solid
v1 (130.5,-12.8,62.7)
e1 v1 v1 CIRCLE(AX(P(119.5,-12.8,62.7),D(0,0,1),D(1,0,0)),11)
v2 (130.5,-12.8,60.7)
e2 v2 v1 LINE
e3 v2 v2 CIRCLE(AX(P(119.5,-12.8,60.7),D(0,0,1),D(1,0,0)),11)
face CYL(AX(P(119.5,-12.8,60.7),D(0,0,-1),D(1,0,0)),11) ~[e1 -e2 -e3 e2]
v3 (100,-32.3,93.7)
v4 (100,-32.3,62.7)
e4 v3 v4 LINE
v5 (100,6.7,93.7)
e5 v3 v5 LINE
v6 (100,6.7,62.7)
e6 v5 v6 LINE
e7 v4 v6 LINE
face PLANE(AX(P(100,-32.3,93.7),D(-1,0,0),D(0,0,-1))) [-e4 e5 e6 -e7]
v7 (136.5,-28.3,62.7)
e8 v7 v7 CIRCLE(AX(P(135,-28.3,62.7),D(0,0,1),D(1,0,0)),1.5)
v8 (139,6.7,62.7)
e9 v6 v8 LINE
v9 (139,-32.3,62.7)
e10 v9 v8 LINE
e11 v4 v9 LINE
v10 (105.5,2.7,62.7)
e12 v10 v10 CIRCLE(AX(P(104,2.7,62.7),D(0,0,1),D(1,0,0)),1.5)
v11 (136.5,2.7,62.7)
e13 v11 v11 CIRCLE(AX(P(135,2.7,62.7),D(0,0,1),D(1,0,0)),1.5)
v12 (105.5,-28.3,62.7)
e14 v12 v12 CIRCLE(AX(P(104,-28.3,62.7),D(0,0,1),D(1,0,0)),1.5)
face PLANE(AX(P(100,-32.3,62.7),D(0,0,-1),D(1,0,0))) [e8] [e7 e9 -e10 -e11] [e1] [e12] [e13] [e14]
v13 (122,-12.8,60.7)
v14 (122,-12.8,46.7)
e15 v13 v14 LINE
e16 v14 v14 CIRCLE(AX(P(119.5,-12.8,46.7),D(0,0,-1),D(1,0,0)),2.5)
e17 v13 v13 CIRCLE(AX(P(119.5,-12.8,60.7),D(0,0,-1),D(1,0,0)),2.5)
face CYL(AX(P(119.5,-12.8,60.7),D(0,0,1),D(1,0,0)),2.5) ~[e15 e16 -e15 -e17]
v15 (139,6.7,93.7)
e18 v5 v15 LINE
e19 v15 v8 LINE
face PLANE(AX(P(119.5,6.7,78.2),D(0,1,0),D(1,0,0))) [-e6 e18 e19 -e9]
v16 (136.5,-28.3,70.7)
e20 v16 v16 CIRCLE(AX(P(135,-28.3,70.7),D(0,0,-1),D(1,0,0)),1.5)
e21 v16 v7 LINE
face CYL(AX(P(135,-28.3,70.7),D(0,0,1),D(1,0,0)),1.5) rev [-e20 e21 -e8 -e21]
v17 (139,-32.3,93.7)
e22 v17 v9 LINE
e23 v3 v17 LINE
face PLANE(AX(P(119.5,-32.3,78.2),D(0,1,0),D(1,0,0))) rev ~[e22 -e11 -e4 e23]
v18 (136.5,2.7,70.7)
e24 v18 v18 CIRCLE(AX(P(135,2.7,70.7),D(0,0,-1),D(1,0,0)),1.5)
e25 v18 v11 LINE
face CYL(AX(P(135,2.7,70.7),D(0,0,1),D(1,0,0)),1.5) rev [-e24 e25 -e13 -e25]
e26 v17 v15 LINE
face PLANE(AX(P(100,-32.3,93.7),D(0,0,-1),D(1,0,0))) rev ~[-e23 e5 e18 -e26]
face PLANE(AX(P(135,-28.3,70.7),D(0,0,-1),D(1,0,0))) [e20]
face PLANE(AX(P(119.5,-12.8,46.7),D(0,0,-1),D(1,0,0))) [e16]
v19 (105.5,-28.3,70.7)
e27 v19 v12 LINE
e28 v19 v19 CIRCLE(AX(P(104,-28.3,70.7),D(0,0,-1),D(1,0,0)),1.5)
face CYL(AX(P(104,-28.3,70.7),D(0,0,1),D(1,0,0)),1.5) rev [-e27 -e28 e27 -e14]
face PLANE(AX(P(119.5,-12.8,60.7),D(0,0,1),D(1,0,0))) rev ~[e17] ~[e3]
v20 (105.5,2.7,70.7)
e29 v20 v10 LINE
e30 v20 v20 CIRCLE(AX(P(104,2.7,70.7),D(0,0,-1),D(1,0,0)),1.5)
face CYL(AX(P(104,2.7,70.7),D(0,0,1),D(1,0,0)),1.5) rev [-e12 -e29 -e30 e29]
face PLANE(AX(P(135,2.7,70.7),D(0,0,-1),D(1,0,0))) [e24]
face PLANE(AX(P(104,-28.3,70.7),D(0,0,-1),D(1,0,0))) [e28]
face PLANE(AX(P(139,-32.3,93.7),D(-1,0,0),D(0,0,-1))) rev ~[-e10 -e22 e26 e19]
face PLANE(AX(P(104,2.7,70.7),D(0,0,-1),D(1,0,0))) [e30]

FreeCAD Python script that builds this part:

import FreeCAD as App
import Part
import Sketcher
from FreeCAD import Vector

doc = App.newDocument("Part")
body = doc.addObject("PartDesign::Body", "Body")

sketch1 = body.newObject("Sketcher::SketchObject", "Sketch")
sketch1.AttachmentSupport = (doc.getObject("XZ_Plane"), [""])
sketch1.MapMode = "FlatFace"
sketch1.AttachmentOffset = App.Placement(Vector(0, 0, -33), App.Rotation())
sketch1.addGeometry(Part.Circle(Vector(20, 20, 0), Vector(0, 0, 1), 11), False)
sketch1.addConstraint([
    Sketcher.Constraint("Diameter", 0, 22.0),
    Sketcher.Constraint("DistanceX", -1, 1, 0, 3, 19.5),
    Sketcher.Constraint("DistanceY", -1, 1, 0, 3, 19.5),
])
pad1 = body.newObject("PartDesign::Pad", "Pad")
pad1.Profile = sketch1
pad1.Length = 2
body2 = doc.addObject("PartDesign::Body", "Body001")

sketch2 = body2.newObject("Sketcher::SketchObject", "Sketch001")
sketch2.AttachmentSupport = (doc.getObject("XZ_Plane001"), [""])
sketch2.MapMode = "FlatFace"
sketch2.AttachmentOffset = App.Placement(Vector(0, 0, -33), App.Rotation())
sketch2.addGeometry(Part.Circle(Vector(19.5, 19.5, 0), Vector(0, 0, 1), 2.5), False)
sketch2.addConstraint([
    Sketcher.Constraint("Diameter", 0, 5.0),
    Sketcher.Constraint("DistanceX", -1, 1, 0, 3, 19.5),
    Sketcher.Constraint("DistanceY", -1, 1, 0, 3, 19.5),
])
pad2 = body2.newObject("PartDesign::Pad", "Pad001")
pad2.Profile = sketch2
pad2.Length = 14
pad2.Reversed = True
body3 = doc.addObject("PartDesign::Body", "Body002")

sketch3 = body3.newObject("Sketcher::SketchObject", "Sketch002")
sketch3.AttachmentSupport = (doc.getObject("XZ_Plane002"), [""])
sketch3.MapMode = "FlatFace"
sketch3.AttachmentOffset = App.Placement(Vector(0, 0, -23), App.Rotation())
sketch3.addGeometry(Part.Circle(Vector(35, 35, 0), Vector(0, 0, 1), 1.5), False)
sketch3.addConstraint([
    Sketcher.Constraint("Diameter", 0, 3.0),
    Sketcher.Constraint("DistanceX", -1, 1, 0, 3, 35.0),
    Sketcher.Constraint("DistanceY", -1, 1, 0, 3, 35.0),
])
pad3 = body3.newObject("PartDesign::Pad", "Pad002")
pad3.Profile = sketch3
pad3.Length = 10
pad3.Reversed = True
body4 = doc.addObject("PartDesign::Body", "Body003")

sketch4 = body4.newObject("Sketcher::SketchObject", "Sketch003")
sketch4.AttachmentSupport = (doc.getObject("XZ_Plane003"), [""])
sketch4.MapMode = "FlatFace"
sketch4.AttachmentOffset = App.Placement(Vector(0, 0, -23), App.Rotation())
sketch4.addGeometry(Part.Circle(Vector(35, 4, 0), Vector(0, 0, 1), 1.5), False)
sketch4.addConstraint([
    Sketcher.Constraint("Diameter", 0, 3.0),
    Sketcher.Constraint("DistanceX", -1, 1, 0, 3, 35.0),
    Sketcher.Constraint("DistanceY", -1, 1, 0, 3, 4.0),
])
pad4 = body4.newObject("PartDesign::Pad", "Pad003")
pad4.Profile = sketch4
pad4.Length = 10
pad4.Reversed = True
body5 = doc.addObject("PartDesign::Body", "Body004")

sketch5 = body5.newObject("Sketcher::SketchObject", "Sketch004")
sketch5.AttachmentSupport = (doc.getObject("XZ_Plane004"), [""])
sketch5.MapMode = "FlatFace"
sketch5.AttachmentOffset = App.Placement(Vector(0, 0, -23), App.Rotation())
sketch5.addGeometry(Part.Circle(Vector(4, 4, 0), Vector(0, 0, 1), 1.5), False)
sketch5.addConstraint([
    Sketcher.Constraint("Diameter", 0, 3.0),
    Sketcher.Constraint("DistanceX", -1, 1, 0, 3, 4.0),
    Sketcher.Constraint("DistanceY", -1, 1, 0, 3, 4.0),
])
pad5 = body5.newObject("PartDesign::Pad", "Pad004")
pad5.Profile = sketch5
pad5.Length = 10
pad5.Reversed = True
body6 = doc.addObject("PartDesign::Body", "Body005")

sketch6 = body6.newObject("Sketcher::SketchObject", "Sketch005")
sketch6.AttachmentSupport = (doc.getObject("XZ_Plane005"), [""])
sketch6.MapMode = "FlatFace"
sketch6.AttachmentOffset = App.Placement(Vector(0, 0, -23), App.Rotation())
sketch6.addGeometry(Part.Circle(Vector(4, 35, 0), Vector(0, 0, 1), 1.5), False)
sketch6.addConstraint([
    Sketcher.Constraint("Diameter", 0, 3.0),
    Sketcher.Constraint("DistanceX", -1, 1, 0, 3, 4.0),
    Sketcher.Constraint("DistanceY", -1, 1, 0, 3, 35.0),
])
pad6 = body6.newObject("PartDesign::Pad", "Pad005")
pad6.Profile = sketch6
pad6.Length = 10
pad6.Reversed = True
body7 = doc.addObject("PartDesign::Body", "Body006")

sketch7 = body7.newObject("Sketcher::SketchObject", "Sketch006")
sketch7.AttachmentSupport = (doc.getObject("XY_Plane006"), [""])
sketch7.MapMode = "FlatFace"
sketch7.addGeometry([
    Part.LineSegment(Vector(0, 31, 0), Vector(0, 0, 0)),
    Part.LineSegment(Vector(0, 0, 0), Vector(39, 0, 0)),
    Part.LineSegment(Vector(39, 0, 0), Vector(39, 31, 0)),
    Part.LineSegment(Vector(39, 31, 0), Vector(0, 31, 0)),
], False)
sketch7.addConstraint([
    Sketcher.Constraint("Coincident", 0, 2, 1, 1),
    Sketcher.Constraint("Coincident", 1, 2, 2, 1),
    Sketcher.Constraint("Coincident", 2, 2, 3, 1),
    Sketcher.Constraint("Coincident", 3, 2, 0, 1),
    Sketcher.Constraint("Vertical", 0),
    Sketcher.Constraint("Horizontal", 1),
    Sketcher.Constraint("Vertical", 2),
    Sketcher.Constraint("Horizontal", 3),
    Sketcher.Constraint("Coincident", 0, 2, -1, 1),
    Sketcher.Constraint("DistanceX", 1, 1, 1, 2, 39.0),
    Sketcher.Constraint("DistanceY", 0, 2, 0, 1, 31.0),
])
pad7 = body7.newObject("PartDesign::Pad", "Pad006")
pad7.Profile = sketch7
pad7.Length = 39
doc.recompute()

boolean = body7.newObject("PartDesign::Boolean", "Boolean")
boolean.Type = "Cut"
boolean.addObjects([body6])
doc.recompute()

boolean2 = body7.newObject("PartDesign::Boolean", "Boolean001")
boolean2.Type = "Cut"
boolean2.addObjects([body5])
doc.recompute()

boolean3 = body7.newObject("PartDesign::Boolean", "Boolean002")
boolean3.Type = "Cut"
boolean3.addObjects([body4])
doc.recompute()

boolean4 = body7.newObject("PartDesign::Boolean", "Boolean003")
boolean4.Type = "Cut"
boolean4.addObjects([body3])
doc.recompute()

boolean5 = body7.newObject("PartDesign::Boolean", "Boolean004")
boolean5.Type = "Fuse"
boolean5.addObjects([body])
doc.recompute()

boolean6 = body7.newObject("PartDesign::Boolean", "Boolean005")
boolean6.Type = "Fuse"
boolean6.addObjects([body2])
body8 = doc.addObject("PartDesign::Body", "Body007")
doc.recompute()

body7.Placement = App.Placement(Vector(100, -32.3, 93.7), App.Rotation(Vector(-1, 0, 0), 90))
boolean7 = body8.newObject("PartDesign::Boolean", "Boolean006")
boolean7.Type = "Fuse"
boolean7.addObjects([body7])

doc.recompute()
